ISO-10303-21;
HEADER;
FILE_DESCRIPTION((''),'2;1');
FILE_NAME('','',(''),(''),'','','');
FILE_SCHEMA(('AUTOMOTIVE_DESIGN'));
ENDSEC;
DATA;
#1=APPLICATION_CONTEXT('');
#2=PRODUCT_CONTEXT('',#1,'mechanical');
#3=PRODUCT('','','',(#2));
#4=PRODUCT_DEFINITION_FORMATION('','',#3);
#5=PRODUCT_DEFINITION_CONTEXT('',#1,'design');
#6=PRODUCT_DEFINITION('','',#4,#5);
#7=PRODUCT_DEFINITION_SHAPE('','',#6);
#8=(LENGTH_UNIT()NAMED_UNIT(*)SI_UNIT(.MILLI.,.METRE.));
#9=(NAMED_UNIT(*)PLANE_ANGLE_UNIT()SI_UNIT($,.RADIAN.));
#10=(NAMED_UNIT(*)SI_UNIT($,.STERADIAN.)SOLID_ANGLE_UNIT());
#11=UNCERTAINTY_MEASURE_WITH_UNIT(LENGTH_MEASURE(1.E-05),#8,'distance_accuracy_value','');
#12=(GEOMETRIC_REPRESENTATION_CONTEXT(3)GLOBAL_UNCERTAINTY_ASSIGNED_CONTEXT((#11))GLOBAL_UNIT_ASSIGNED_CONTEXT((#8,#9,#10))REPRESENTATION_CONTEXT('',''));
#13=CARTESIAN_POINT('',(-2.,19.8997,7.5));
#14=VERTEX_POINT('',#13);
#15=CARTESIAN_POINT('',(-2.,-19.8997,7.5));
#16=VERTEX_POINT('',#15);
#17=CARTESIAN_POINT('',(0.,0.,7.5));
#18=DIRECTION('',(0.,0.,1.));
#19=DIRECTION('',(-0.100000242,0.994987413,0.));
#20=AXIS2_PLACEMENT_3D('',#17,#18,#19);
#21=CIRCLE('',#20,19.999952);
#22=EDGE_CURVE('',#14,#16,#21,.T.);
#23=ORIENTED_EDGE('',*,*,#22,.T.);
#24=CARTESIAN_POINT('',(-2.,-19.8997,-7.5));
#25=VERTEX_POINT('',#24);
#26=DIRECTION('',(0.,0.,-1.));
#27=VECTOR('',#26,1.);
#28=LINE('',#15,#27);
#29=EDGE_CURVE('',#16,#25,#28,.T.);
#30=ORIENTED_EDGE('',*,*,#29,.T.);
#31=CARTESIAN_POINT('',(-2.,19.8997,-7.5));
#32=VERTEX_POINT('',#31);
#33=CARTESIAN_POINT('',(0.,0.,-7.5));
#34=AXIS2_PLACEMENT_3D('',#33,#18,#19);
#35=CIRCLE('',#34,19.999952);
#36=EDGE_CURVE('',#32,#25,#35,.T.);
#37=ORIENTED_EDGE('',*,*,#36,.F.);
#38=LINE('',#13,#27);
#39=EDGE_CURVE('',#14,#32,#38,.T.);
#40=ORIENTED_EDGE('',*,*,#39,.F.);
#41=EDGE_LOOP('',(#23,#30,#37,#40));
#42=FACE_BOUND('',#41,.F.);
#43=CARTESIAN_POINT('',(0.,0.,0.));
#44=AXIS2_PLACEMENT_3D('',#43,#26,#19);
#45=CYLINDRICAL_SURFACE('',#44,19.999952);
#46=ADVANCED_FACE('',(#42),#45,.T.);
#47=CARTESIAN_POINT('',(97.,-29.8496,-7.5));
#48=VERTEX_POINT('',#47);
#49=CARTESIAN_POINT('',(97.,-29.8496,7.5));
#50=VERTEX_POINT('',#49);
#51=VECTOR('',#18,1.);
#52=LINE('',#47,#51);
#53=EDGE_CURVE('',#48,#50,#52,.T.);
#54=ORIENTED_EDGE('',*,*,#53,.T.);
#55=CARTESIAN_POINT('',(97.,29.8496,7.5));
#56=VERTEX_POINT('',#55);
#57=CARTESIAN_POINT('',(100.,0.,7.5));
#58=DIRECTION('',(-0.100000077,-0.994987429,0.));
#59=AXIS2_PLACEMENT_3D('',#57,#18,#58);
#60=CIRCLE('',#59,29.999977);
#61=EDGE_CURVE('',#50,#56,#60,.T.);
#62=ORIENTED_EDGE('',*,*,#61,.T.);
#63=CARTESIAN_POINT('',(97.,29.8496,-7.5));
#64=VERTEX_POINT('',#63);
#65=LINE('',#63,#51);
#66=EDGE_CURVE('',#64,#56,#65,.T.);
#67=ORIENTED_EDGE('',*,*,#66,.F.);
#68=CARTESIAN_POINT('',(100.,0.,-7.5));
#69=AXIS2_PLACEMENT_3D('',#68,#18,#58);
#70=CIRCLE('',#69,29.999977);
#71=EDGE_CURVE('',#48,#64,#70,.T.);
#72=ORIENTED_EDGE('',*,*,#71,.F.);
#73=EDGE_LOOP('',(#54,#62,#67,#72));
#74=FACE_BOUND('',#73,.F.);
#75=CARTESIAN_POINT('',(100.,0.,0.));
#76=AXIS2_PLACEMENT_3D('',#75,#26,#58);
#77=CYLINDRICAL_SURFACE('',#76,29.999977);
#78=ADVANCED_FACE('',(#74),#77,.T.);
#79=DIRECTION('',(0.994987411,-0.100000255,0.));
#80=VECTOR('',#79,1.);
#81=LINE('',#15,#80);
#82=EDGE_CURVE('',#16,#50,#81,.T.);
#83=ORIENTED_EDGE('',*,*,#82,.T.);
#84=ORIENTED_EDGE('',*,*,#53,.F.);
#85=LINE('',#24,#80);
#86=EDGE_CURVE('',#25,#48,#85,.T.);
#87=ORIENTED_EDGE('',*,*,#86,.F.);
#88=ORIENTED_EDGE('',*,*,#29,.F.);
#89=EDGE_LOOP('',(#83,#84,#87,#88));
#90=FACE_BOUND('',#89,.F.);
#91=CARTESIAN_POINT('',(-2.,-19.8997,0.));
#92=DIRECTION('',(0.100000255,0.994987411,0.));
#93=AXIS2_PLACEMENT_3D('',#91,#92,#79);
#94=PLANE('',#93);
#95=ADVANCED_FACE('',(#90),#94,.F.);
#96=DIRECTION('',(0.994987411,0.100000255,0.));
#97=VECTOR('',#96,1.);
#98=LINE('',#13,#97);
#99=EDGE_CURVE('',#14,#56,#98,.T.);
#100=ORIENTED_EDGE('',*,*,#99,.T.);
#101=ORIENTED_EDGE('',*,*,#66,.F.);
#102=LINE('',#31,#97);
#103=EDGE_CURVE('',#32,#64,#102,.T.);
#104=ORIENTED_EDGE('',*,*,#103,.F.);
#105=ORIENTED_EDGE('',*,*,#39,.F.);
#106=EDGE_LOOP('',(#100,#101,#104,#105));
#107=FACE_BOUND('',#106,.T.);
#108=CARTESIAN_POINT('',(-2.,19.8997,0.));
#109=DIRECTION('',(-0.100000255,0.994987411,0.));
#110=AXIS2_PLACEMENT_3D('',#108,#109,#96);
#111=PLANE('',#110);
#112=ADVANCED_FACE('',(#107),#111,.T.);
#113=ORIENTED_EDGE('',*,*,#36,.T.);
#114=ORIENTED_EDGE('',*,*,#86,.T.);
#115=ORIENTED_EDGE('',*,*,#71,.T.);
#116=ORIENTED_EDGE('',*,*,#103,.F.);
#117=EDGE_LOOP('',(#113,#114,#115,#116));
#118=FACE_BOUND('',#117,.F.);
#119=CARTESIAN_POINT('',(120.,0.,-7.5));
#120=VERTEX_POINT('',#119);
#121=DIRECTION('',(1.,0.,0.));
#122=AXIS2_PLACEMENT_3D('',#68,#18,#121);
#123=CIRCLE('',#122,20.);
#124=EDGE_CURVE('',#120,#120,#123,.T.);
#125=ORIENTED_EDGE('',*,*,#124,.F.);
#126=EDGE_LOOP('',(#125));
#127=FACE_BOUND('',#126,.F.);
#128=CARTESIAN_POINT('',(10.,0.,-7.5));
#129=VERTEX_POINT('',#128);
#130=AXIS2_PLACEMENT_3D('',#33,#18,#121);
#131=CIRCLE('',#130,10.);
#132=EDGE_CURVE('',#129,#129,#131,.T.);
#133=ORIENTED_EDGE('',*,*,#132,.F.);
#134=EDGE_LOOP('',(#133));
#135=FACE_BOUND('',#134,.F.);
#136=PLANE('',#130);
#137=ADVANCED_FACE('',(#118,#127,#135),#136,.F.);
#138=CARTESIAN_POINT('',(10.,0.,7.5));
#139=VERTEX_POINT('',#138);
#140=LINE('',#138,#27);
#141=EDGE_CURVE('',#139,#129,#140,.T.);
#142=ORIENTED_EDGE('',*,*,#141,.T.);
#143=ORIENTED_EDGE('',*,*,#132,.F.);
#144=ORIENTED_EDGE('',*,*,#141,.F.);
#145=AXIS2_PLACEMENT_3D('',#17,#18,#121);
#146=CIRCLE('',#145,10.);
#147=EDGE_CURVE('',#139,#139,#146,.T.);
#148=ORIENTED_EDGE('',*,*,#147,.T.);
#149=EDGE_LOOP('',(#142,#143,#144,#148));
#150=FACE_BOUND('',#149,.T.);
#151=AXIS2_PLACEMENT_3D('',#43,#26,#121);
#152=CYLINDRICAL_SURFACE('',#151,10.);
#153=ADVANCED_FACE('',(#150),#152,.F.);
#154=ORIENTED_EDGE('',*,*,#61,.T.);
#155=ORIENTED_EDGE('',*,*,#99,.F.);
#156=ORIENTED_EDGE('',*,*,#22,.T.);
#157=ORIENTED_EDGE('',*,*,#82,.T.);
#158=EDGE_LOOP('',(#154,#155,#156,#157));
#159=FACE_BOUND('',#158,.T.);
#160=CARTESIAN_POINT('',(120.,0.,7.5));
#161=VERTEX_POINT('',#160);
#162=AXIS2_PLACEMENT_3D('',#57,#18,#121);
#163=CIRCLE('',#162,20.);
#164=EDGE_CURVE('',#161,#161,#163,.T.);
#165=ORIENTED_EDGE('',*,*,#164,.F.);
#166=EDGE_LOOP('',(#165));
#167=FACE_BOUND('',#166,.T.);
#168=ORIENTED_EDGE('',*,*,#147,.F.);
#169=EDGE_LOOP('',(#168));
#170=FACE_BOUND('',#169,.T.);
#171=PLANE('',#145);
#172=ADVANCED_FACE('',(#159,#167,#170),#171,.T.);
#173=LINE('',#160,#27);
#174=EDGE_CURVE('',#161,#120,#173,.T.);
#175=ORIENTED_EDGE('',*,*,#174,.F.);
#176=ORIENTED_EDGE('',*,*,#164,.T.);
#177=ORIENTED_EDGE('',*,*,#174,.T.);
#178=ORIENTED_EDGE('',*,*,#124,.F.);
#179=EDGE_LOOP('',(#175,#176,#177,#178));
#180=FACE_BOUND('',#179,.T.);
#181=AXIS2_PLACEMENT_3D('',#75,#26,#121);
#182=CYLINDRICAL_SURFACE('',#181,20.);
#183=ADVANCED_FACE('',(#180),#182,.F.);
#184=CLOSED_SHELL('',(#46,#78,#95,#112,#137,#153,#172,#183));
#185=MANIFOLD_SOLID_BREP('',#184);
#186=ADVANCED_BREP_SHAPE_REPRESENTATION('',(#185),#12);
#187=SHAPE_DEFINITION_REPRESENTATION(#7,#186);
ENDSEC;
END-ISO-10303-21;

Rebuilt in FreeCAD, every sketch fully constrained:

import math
import FreeCAD as App
import Part
import Sketcher

V = App.Vector
Q = App.Units.Quantity

doc = App.newDocument("Part")
body = doc.addObject("PartDesign::Body", "Body")

sketch1 = body.newObject("Sketcher::SketchObject", "Sketch")
sketch1.AttachmentSupport = (doc.getObject("XY_Plane"), [""])
sketch1.MapMode = "FlatFace"
sketch1.addGeometry(Part.LineSegment(V(-2, -20, 0), V(97, -30, 0)), False)
sketch1.addGeometry(Part.ArcOfCircle(Part.Circle(V(100, 0, 0), V(0, 0, 1), 30), math.radians(-96), math.radians(96)), False)
sketch1.addGeometry(Part.LineSegment(V(97, 30, 0), V(-2, 20, 0)), False)
sketch1.addGeometry(Part.ArcOfCircle(Part.Circle(V(0, 0, 0), V(0, 0, 1), 20), math.radians(96), math.radians(264)), False)
sketch1.addGeometry(Part.Circle(V(0, 0, 0), V(0, 0, 1), 10), False)
sketch1.addGeometry(Part.Circle(V(100, 0, 0), V(0, 0, 1), 20), False)
sketch1.addConstraint(Sketcher.Constraint("Tangent", 0, 2, 1, 1))
sketch1.addConstraint(Sketcher.Constraint("Tangent", 1, 2, 2, 1))
sketch1.addConstraint(Sketcher.Constraint("Tangent", 2, 2, 3, 1))
sketch1.addConstraint(Sketcher.Constraint("Tangent", 3, 2, 0, 1))
sketch1.addConstraint(Sketcher.Constraint("Coincident", 3, 3, -1, 1))
sketch1.addConstraint(Sketcher.Constraint("Coincident", 4, 3, -1, 1))
sketch1.addConstraint(Sketcher.Constraint("Coincident", 5, 3, 1, 3))
sketch1.addConstraint(Sketcher.Constraint("Equal", 3, 5))
sketch1.addConstraint(Sketcher.Constraint("PointOnObject", 1, 3, -1))
sketch1.addConstraint(Sketcher.Constraint("Diameter", 4, Q("20 mm")))
sketch1.addConstraint(Sketcher.Constraint("Diameter", 5, Q("40 mm")))
sketch1.addConstraint(Sketcher.Constraint("Radius", 1, Q("30 mm")))
sketch1.addConstraint(Sketcher.Constraint("DistanceX", -1, 1, 1, 3, Q("100 mm")))
pad1 = body.newObject("PartDesign::Pad", "Pad")
pad1.Profile = sketch1
pad1.Length = 15
pad1.Midplane = True

doc.recompute()
